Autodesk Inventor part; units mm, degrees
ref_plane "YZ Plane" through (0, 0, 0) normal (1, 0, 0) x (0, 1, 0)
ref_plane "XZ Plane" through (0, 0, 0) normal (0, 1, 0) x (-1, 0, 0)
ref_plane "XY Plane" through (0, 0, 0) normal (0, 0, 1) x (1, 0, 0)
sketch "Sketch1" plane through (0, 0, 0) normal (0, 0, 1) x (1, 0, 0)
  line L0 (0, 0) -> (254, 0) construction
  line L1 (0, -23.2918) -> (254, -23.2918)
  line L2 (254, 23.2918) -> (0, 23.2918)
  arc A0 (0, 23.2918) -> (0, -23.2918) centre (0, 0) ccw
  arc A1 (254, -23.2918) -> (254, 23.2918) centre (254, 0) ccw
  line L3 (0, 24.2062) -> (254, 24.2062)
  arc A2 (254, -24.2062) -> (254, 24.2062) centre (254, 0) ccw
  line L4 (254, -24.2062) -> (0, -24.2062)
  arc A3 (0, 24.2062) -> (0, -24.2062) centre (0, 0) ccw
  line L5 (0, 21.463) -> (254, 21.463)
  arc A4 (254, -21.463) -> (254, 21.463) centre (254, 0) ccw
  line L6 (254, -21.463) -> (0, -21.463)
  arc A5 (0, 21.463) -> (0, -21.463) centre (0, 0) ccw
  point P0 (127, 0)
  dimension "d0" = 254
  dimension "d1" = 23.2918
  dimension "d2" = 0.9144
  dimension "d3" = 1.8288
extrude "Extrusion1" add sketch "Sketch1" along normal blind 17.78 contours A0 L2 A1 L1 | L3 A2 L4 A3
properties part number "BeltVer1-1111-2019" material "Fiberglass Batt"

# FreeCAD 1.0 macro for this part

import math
import FreeCAD as App
import Part
import Sketcher

V = App.Vector
Q = App.Units.Quantity

doc = App.newDocument("Part")
body = doc.addObject("PartDesign::Body", "Body")

# Sketch on XY plane
sketch1 = body.newObject("Sketcher::SketchObject", "Sketch")
sketch1.AttachmentSupport = (doc.getObject("XY_Plane"), [""])
sketch1.MapMode = "FlatFace"
sketch1.addGeometry(Part.LineSegment(V(254, 24, 0), V(0, 24, 0)), False)
sketch1.addGeometry(Part.ArcOfCircle(Part.Circle(V(0, 0, 0), V(0, 0, 1), 24), math.radians(90), math.radians(270)), False)
sketch1.addGeometry(Part.LineSegment(V(0, -24, 0), V(254, -24, 0)), False)
sketch1.addGeometry(Part.ArcOfCircle(Part.Circle(V(254, 0, 0), V(0, 0, 1), 24), math.radians(-90), math.radians(90)), False)
sketch1.addGeometry(Part.ArcOfCircle(Part.Circle(V(0, 0, 0), V(0, 0, 1), 21), math.radians(90), math.radians(270)), False)
sketch1.addGeometry(Part.LineSegment(V(0, 21, 0), V(254, 21, 0)), False)
sketch1.addGeometry(Part.ArcOfCircle(Part.Circle(V(254, 0, 0), V(0, 0, 1), 21), math.radians(-90), math.radians(90)), False)
sketch1.addGeometry(Part.LineSegment(V(254, -21, 0), V(0, -21, 0)), False)
sketch1.addConstraint(Sketcher.Constraint("Tangent", 0, 2, 1, 1))
sketch1.addConstraint(Sketcher.Constraint("Tangent", 1, 2, 2, 1))
sketch1.addConstraint(Sketcher.Constraint("Tangent", 2, 2, 3, 1))
sketch1.addConstraint(Sketcher.Constraint("Tangent", 3, 2, 0, 1))
sketch1.addConstraint(Sketcher.Constraint("Tangent", 4, 1, 5, 1))
sketch1.addConstraint(Sketcher.Constraint("Tangent", 5, 2, 6, 2))
sketch1.addConstraint(Sketcher.Constraint("Tangent", 6, 1, 7, 1))
sketch1.addConstraint(Sketcher.Constraint("Tangent", 7, 2, 4, 2))
sketch1.addConstraint(Sketcher.Constraint("Horizontal", 0))
sketch1.addConstraint(Sketcher.Constraint("Horizontal", 2))
sketch1.addConstraint(Sketcher.Constraint("Horizontal", 5))
sketch1.addConstraint(Sketcher.Constraint("Horizontal", 7))
sketch1.addConstraint(Sketcher.Constraint("Coincident", 1, 3, -1, 1))
sketch1.addConstraint(Sketcher.Constraint("Coincident", 4, 3, -1, 1))
sketch1.addConstraint(Sketcher.Constraint("Vertical", 6, 3, 2, 2))
sketch1.addConstraint(Sketcher.Constraint("DistanceX", 0, 2, 0, 1, Q("10 in")))
sketch1.addConstraint(Sketcher.Constraint("Radius", 1, Q("0.953 in")))
sketch1.addConstraint(Sketcher.Constraint("Radius", 4, Q("0.845 in")))
pad1 = body.newObject("PartDesign::Pad", "Pad")
pad1.Profile = sketch1
pad1.Length = Q("0.7 in")

doc.recompute()
